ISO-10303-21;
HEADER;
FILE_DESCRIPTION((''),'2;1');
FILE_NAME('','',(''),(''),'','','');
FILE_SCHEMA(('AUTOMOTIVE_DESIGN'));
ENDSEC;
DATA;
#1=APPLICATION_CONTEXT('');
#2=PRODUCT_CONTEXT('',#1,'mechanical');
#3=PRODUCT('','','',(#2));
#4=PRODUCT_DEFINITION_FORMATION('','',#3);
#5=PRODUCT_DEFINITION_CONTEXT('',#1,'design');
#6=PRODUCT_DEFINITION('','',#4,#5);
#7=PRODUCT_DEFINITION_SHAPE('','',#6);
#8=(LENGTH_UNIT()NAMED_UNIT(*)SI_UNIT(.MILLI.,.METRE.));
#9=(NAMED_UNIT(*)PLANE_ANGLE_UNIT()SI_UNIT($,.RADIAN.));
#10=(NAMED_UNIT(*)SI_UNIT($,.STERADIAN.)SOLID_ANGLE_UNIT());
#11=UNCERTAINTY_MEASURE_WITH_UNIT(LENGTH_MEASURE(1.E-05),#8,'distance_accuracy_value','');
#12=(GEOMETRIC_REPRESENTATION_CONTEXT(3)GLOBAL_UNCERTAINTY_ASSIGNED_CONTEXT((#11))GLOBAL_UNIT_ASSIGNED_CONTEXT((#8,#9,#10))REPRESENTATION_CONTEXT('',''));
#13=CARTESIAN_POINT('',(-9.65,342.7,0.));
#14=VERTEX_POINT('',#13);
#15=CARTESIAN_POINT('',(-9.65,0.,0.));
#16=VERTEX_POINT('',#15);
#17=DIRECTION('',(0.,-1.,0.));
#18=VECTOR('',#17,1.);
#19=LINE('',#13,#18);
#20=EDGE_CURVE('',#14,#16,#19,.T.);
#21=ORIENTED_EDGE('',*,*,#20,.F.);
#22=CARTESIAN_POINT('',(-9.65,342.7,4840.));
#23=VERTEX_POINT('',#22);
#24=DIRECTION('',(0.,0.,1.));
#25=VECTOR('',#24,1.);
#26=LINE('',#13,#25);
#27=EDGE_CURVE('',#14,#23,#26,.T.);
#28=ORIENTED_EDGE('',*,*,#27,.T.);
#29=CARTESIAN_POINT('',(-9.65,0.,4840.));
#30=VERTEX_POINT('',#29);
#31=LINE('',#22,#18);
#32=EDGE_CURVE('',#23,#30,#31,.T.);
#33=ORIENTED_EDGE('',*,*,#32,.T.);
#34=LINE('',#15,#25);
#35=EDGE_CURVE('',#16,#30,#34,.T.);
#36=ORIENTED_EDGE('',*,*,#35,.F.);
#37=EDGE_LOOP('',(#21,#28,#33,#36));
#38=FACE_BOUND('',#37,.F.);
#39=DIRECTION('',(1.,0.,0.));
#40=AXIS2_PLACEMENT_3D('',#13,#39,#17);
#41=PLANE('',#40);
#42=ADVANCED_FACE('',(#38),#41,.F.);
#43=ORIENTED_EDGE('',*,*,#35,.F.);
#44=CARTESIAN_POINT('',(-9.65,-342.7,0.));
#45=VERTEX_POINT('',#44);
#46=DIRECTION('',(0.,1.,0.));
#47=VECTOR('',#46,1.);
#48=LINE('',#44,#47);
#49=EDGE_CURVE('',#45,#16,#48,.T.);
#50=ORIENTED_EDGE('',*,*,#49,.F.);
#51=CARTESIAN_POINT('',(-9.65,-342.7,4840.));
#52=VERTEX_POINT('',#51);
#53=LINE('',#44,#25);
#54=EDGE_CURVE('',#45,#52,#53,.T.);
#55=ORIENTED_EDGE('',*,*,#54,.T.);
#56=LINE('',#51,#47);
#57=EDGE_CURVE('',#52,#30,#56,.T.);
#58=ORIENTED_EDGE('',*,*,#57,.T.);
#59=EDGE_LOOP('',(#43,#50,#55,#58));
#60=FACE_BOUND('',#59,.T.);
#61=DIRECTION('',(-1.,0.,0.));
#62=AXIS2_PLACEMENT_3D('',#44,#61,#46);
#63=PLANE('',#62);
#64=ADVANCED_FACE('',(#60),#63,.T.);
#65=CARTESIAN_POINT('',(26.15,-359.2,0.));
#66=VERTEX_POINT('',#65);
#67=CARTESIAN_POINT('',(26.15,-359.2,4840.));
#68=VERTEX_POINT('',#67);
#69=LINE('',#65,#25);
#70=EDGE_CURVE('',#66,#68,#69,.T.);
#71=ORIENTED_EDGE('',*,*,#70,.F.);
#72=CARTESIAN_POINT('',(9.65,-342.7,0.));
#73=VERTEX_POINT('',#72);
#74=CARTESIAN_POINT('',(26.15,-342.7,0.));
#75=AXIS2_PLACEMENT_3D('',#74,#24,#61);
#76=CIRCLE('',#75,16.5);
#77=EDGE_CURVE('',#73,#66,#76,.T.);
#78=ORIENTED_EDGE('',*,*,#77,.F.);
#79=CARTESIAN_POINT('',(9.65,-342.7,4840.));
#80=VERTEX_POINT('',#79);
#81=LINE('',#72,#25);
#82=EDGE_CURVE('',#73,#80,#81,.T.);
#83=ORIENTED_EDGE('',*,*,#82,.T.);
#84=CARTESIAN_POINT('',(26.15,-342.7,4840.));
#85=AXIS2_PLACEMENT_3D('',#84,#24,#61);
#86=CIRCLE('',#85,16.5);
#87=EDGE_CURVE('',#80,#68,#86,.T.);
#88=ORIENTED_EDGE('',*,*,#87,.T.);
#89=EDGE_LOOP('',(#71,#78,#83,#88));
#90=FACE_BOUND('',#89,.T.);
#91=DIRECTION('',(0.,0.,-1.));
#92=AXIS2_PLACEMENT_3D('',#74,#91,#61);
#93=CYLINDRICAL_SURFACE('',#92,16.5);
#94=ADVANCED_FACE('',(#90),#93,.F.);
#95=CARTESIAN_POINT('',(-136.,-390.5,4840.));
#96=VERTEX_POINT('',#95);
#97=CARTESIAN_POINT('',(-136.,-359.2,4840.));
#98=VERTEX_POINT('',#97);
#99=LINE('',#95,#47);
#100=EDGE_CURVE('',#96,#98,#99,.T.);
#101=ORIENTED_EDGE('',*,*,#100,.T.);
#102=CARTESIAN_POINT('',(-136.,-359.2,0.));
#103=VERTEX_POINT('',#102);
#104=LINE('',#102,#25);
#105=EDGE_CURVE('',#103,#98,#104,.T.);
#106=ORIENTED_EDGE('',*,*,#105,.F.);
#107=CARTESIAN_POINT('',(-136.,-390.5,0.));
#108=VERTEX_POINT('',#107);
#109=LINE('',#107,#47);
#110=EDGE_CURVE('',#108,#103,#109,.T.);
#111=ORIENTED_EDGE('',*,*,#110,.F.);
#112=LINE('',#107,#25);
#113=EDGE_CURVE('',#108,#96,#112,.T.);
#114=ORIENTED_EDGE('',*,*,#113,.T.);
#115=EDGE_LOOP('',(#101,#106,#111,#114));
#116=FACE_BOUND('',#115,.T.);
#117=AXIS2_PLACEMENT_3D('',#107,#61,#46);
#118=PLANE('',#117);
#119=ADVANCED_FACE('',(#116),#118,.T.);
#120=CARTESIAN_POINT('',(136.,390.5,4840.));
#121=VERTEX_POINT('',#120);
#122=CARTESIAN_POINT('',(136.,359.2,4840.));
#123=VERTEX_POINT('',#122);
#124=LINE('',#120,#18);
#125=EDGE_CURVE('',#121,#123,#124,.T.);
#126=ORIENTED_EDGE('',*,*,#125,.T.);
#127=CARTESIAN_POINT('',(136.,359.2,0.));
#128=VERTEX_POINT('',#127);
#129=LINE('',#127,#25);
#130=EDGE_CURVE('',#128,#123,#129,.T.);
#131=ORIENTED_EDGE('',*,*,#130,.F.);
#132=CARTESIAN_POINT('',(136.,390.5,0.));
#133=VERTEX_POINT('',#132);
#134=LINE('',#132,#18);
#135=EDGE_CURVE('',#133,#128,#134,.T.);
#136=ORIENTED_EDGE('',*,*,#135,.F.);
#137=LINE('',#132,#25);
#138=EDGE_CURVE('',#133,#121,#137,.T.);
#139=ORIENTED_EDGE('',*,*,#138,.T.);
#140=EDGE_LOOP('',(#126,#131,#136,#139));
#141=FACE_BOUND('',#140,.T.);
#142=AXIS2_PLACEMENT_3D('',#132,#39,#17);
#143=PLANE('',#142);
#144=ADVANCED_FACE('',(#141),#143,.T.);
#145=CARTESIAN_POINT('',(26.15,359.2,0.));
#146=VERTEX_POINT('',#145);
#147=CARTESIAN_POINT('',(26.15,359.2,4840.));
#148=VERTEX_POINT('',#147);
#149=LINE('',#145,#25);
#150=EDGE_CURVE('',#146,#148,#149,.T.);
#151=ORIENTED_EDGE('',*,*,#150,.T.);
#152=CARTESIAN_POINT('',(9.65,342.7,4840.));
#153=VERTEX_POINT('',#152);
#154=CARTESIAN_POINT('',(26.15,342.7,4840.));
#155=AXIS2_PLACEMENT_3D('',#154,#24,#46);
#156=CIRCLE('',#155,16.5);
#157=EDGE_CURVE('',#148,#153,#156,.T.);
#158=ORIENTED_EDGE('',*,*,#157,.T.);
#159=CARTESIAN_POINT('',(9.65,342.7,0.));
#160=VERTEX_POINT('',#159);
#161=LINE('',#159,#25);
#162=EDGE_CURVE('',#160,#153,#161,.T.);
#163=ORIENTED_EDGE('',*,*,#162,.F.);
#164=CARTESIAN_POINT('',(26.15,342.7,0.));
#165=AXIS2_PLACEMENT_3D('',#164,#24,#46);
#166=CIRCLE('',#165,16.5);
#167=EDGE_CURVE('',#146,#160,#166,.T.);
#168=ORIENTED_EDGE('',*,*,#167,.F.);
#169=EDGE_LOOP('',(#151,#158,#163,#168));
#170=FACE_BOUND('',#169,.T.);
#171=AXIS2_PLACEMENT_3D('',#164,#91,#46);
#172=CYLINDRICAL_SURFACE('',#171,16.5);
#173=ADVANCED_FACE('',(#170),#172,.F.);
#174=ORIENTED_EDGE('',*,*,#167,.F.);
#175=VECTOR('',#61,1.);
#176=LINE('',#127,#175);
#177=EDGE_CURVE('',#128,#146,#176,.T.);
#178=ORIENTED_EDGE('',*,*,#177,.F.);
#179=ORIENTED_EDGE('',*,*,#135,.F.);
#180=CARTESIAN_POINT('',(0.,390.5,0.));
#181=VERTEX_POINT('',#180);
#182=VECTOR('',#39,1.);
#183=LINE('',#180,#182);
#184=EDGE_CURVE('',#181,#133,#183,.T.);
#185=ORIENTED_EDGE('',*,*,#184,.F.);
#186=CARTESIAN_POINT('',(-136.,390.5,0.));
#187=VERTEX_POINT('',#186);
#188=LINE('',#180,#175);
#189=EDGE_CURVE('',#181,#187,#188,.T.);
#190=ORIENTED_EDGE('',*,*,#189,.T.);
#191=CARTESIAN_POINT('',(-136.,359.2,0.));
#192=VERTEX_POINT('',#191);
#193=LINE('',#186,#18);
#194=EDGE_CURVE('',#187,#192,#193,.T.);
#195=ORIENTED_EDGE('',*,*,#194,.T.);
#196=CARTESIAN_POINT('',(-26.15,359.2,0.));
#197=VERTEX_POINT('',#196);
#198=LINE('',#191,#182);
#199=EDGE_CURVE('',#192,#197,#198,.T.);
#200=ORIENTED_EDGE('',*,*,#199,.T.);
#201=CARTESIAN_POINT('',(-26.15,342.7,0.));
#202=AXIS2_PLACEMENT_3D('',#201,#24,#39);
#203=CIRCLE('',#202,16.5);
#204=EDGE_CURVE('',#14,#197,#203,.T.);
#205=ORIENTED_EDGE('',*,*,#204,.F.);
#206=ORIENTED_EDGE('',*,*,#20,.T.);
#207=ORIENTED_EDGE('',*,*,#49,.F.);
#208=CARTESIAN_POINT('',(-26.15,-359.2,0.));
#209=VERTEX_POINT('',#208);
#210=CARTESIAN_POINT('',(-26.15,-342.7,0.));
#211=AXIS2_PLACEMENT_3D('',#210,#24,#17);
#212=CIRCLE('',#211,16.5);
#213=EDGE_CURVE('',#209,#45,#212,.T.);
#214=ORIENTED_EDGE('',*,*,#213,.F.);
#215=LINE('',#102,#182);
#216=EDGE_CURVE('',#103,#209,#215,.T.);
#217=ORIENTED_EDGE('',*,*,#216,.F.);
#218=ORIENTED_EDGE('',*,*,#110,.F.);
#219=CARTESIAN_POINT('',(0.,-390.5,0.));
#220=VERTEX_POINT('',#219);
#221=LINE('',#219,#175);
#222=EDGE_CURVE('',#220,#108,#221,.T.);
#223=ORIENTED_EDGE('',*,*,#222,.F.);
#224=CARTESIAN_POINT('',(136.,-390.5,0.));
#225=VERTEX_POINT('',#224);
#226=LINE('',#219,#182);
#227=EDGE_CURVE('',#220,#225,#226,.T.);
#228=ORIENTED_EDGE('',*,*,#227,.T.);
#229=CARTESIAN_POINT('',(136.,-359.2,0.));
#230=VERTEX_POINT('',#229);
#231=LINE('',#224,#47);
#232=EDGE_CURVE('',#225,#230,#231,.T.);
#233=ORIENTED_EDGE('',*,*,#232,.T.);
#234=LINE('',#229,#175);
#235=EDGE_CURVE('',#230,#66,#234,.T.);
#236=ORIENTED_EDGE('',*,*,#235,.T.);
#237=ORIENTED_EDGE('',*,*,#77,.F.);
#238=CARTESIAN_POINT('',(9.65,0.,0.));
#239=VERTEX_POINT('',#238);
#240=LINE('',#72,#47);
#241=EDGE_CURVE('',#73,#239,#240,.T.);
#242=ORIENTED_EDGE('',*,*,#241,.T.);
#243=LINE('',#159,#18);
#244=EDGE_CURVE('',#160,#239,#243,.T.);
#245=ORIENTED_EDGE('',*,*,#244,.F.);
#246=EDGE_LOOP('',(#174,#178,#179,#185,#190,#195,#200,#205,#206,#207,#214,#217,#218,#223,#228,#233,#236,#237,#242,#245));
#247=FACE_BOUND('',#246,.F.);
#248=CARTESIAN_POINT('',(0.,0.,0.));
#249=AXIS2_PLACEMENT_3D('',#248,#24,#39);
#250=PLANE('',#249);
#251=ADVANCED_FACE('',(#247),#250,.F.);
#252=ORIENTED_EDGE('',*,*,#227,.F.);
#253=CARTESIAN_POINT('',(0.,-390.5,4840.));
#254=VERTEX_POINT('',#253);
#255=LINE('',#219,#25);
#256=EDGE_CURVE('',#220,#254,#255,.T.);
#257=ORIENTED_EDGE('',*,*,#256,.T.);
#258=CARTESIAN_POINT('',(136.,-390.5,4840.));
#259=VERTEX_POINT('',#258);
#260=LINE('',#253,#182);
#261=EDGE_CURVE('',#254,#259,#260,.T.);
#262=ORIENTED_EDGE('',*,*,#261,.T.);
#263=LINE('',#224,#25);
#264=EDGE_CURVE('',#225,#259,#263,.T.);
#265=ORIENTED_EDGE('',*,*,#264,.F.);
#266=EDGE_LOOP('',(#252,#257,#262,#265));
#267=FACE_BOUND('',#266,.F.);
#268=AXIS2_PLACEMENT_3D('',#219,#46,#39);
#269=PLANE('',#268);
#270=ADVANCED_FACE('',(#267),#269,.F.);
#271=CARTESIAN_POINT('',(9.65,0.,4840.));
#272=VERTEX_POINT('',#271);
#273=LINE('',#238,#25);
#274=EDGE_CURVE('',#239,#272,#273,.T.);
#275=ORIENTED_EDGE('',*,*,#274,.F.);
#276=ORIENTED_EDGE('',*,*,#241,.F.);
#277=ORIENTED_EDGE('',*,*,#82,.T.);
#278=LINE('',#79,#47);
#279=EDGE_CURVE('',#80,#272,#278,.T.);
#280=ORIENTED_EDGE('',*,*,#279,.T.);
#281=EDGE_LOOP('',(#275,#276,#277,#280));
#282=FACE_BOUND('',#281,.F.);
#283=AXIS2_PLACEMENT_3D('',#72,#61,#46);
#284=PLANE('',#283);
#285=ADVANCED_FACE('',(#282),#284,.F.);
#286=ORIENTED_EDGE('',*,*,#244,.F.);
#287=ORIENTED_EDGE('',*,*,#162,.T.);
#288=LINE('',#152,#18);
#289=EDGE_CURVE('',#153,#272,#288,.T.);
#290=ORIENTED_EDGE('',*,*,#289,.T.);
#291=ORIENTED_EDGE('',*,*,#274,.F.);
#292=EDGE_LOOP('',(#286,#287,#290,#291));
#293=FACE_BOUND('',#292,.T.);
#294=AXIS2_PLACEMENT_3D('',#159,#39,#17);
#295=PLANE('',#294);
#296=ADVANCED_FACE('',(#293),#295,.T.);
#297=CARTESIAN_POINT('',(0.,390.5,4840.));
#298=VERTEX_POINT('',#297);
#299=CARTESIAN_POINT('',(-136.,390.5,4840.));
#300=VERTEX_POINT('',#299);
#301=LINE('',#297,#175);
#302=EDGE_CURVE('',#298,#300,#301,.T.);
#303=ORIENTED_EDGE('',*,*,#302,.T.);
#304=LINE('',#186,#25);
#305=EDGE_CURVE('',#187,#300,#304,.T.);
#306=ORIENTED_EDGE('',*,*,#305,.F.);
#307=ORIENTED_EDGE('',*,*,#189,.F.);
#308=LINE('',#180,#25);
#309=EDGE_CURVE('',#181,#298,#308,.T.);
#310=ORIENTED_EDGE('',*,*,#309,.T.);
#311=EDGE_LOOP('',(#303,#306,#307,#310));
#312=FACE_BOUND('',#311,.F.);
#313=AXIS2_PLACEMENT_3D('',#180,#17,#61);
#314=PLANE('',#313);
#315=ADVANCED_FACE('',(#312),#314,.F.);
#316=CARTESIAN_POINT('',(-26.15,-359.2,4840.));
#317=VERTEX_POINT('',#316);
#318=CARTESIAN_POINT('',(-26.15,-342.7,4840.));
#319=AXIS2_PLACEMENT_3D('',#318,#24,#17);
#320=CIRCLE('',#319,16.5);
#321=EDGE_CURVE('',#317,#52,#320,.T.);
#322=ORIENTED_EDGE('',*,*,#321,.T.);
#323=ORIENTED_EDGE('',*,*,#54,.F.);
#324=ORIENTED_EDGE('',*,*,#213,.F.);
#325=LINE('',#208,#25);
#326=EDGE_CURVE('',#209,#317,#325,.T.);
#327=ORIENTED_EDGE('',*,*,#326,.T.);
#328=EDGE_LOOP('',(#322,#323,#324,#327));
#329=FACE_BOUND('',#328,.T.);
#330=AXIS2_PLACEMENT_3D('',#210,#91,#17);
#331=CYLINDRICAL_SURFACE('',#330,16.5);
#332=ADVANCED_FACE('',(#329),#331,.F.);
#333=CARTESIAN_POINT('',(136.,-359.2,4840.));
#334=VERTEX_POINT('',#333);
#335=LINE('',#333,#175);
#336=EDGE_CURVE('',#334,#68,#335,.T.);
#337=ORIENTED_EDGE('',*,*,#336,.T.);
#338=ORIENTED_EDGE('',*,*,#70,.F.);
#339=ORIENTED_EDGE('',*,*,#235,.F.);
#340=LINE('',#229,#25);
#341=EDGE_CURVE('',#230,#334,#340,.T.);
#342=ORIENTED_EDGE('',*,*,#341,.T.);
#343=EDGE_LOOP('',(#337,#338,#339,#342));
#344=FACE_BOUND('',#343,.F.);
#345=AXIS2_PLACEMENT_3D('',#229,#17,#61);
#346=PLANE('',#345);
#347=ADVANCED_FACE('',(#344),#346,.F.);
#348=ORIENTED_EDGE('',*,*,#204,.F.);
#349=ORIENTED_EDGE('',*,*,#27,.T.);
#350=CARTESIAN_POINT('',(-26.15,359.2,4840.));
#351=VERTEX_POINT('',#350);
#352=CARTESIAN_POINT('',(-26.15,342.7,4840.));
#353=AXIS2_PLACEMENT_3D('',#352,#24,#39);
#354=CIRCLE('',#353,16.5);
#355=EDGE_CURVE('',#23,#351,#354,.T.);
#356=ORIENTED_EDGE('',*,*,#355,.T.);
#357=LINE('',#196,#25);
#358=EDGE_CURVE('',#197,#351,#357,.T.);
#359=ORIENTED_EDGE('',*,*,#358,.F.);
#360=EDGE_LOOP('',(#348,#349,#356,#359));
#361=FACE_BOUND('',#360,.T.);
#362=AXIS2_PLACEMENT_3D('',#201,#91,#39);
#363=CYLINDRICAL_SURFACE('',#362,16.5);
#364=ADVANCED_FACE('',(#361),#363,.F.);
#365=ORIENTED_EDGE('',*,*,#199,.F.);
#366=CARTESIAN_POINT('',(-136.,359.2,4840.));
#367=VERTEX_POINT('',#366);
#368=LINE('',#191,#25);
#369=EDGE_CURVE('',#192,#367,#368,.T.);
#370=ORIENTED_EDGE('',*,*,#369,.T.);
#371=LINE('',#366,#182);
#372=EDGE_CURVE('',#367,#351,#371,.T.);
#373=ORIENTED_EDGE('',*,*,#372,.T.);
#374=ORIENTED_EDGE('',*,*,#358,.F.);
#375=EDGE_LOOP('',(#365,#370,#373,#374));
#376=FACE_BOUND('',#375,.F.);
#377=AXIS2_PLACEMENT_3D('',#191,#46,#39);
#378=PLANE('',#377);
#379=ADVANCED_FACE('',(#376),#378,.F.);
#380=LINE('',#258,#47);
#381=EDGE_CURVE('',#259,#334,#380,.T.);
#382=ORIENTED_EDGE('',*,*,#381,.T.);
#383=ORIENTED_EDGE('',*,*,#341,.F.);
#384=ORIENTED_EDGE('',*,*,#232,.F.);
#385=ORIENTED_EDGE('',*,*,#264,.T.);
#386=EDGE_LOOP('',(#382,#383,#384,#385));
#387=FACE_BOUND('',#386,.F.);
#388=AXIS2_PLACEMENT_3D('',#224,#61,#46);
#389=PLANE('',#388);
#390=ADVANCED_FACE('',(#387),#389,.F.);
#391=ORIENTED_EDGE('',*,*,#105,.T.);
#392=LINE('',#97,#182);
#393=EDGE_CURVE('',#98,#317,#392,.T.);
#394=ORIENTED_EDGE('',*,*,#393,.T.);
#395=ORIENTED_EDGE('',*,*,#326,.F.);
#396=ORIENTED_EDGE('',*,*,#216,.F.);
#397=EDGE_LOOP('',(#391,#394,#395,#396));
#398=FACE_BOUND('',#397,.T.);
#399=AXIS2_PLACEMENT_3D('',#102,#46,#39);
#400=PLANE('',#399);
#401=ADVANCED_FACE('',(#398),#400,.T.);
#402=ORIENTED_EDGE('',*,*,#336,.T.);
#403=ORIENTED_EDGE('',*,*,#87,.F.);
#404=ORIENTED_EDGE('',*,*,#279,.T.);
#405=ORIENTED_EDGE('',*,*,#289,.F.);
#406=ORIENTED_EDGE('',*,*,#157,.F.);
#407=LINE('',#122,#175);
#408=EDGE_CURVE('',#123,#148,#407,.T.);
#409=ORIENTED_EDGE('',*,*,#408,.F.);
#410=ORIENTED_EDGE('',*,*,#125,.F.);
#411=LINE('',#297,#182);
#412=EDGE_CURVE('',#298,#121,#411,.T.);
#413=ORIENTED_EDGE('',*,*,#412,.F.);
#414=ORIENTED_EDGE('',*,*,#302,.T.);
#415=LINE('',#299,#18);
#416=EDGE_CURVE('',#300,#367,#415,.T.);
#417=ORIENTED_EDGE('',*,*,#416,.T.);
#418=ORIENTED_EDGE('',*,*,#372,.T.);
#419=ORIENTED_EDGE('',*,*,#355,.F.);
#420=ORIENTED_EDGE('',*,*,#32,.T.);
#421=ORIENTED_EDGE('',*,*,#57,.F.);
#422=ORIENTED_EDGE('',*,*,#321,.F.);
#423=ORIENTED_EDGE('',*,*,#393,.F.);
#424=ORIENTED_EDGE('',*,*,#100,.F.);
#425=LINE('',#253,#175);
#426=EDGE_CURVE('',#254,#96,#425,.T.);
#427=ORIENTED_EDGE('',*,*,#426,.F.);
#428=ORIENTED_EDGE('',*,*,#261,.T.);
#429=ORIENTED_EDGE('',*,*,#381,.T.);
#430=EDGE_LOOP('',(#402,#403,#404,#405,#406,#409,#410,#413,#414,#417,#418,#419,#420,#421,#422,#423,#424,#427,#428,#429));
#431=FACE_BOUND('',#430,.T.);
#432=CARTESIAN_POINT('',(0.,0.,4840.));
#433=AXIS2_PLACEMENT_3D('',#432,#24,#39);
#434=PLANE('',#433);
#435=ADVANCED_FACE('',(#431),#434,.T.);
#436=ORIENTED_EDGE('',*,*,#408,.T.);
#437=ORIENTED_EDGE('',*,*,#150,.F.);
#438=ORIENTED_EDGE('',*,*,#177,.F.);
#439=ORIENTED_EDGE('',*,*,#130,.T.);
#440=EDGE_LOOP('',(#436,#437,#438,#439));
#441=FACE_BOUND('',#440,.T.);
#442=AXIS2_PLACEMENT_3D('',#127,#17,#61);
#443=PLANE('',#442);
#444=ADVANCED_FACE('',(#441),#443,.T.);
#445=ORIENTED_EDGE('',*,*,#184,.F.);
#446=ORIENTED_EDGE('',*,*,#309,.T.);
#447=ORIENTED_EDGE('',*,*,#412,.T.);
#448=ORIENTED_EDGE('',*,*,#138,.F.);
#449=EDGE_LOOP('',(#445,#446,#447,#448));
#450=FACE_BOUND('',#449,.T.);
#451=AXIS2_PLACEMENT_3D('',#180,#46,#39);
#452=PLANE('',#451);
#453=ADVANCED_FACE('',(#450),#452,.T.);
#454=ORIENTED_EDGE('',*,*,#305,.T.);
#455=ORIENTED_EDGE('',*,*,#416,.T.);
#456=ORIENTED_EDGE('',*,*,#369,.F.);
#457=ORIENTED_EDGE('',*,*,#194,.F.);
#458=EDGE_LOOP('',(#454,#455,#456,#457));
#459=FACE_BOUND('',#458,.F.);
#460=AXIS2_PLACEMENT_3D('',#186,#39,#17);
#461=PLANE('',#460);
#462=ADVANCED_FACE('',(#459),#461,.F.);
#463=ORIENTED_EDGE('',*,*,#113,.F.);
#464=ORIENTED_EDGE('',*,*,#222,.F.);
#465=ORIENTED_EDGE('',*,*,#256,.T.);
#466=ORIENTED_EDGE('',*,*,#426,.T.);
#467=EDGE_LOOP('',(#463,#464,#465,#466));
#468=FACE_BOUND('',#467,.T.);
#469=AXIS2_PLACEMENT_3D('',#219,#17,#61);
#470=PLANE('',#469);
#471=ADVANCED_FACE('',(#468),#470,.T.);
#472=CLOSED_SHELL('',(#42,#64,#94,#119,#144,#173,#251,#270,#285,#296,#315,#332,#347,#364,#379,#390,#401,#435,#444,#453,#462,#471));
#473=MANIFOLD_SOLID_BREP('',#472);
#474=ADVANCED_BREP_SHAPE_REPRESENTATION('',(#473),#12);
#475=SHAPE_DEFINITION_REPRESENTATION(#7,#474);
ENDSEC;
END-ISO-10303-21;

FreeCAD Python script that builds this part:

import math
import FreeCAD as App
import Part
import Sketcher
from FreeCAD import Vector
Q = App.Units.Quantity

doc = App.newDocument("Part")
body = doc.addObject("PartDesign::Body", "Body")

# Sketch on XY plane
sketch1 = doc.addObject("Sketcher::SketchObject", "Sketch")
body.addObject(sketch1)
sketch1.AttachmentSupport = (doc.XY_Plane, [""])
sketch1.MapMode = "FlatFace"
sketch1.addGeometry(Part.LineSegment(Vector(-136, -359.2, 0), Vector(-136, -390.5, 0)), False)
sketch1.addGeometry(Part.LineSegment(Vector(-136, -390.5, 0), Vector(136, -390.5, 0)), False)
sketch1.addGeometry(Part.LineSegment(Vector(136, -390.5, 0), Vector(136, -359.2, 0)), False)
sketch1.addGeometry(Part.LineSegment(Vector(136, -359.2, 0), Vector(26.15, -359.2, 0)), False)
sketch1.addGeometry(Part.ArcOfCircle(Part.Circle(Vector(26.15, -342.7, 0), Vector(0, 0, 1), 16.5), math.radians(180), math.radians(270)), False)
sketch1.addGeometry(Part.LineSegment(Vector(9.65, -342.7, 0), Vector(9.65, 342.7, 0)), False)
sketch1.addGeometry(Part.ArcOfCircle(Part.Circle(Vector(26.15, 342.7, 0), Vector(0, 0, 1), 16.5), math.radians(90), math.radians(180)), False)
sketch1.addGeometry(Part.LineSegment(Vector(26.15, 359.2, 0), Vector(136, 359.2, 0)), False)
sketch1.addGeometry(Part.LineSegment(Vector(136, 359.2, 0), Vector(136, 390.5, 0)), False)
sketch1.addGeometry(Part.LineSegment(Vector(136, 390.5, 0), Vector(-136, 390.5, 0)), False)
sketch1.addGeometry(Part.LineSegment(Vector(-136, 390.5, 0), Vector(-136, 359.2, 0)), False)
sketch1.addGeometry(Part.LineSegment(Vector(-136, 359.2, 0), Vector(-26.15, 359.2, 0)), False)
sketch1.addGeometry(Part.ArcOfCircle(Part.Circle(Vector(-26.15, 342.7, 0), Vector(0, 0, 1), 16.5), math.radians(0), math.radians(90)), False)
sketch1.addGeometry(Part.LineSegment(Vector(-9.65, 342.7, 0), Vector(-9.65, -342.7, 0)), False)
sketch1.addGeometry(Part.ArcOfCircle(Part.Circle(Vector(-26.15, -342.7, 0), Vector(0, 0, 1), 16.5), math.radians(-90), math.radians(0)), False)
sketch1.addGeometry(Part.LineSegment(Vector(-26.15, -359.2, 0), Vector(-136, -359.2, 0)), False)
sketch1.addConstraint(Sketcher.Constraint("Coincident", 0, 2, 1, 1))
sketch1.addConstraint(Sketcher.Constraint("Coincident", 1, 2, 2, 1))
sketch1.addConstraint(Sketcher.Constraint("Coincident", 2, 2, 3, 1))
sketch1.addConstraint(Sketcher.Constraint("Tangent", 3, 2, 4, 2))
sketch1.addConstraint(Sketcher.Constraint("Tangent", 4, 1, 5, 1))
sketch1.addConstraint(Sketcher.Constraint("Tangent", 5, 2, 6, 2))
sketch1.addConstraint(Sketcher.Constraint("Tangent", 6, 1, 7, 1))
sketch1.addConstraint(Sketcher.Constraint("Coincident", 7, 2, 8, 1))
sketch1.addConstraint(Sketcher.Constraint("Coincident", 8, 2, 9, 1))
sketch1.addConstraint(Sketcher.Constraint("Coincident", 9, 2, 10, 1))
sketch1.addConstraint(Sketcher.Constraint("Coincident", 10, 2, 11, 1))
sketch1.addConstraint(Sketcher.Constraint("Tangent", 11, 2, 12, 2))
sketch1.addConstraint(Sketcher.Constraint("Tangent", 12, 1, 13, 1))
sketch1.addConstraint(Sketcher.Constraint("Tangent", 13, 2, 14, 2))
sketch1.addConstraint(Sketcher.Constraint("Tangent", 14, 1, 15, 1))
sketch1.addConstraint(Sketcher.Constraint("Coincident", 15, 2, 0, 1))
sketch1.addConstraint(Sketcher.Constraint("Vertical", 0))
sketch1.addConstraint(Sketcher.Constraint("Horizontal", 1))
sketch1.addConstraint(Sketcher.Constraint("Vertical", 2))
sketch1.addConstraint(Sketcher.Constraint("Horizontal", 3))
sketch1.addConstraint(Sketcher.Constraint("Vertical", 5))
sketch1.addConstraint(Sketcher.Constraint("Horizontal", 7))
sketch1.addConstraint(Sketcher.Constraint("Vertical", 8))
sketch1.addConstraint(Sketcher.Constraint("Horizontal", 9))
sketch1.addConstraint(Sketcher.Constraint("Vertical", 10))
sketch1.addConstraint(Sketcher.Constraint("Horizontal", 11))
sketch1.addConstraint(Sketcher.Constraint("Vertical", 13))
sketch1.addConstraint(Sketcher.Constraint("Horizontal", 15))
sketch1.addConstraint(Sketcher.Constraint("Equal", 4, 6))
sketch1.addConstraint(Sketcher.Constraint("Equal", 6, 12))
sketch1.addConstraint(Sketcher.Constraint("Equal", 12, 14))
sketch1.addConstraint(Sketcher.Constraint("Symmetric", 4, 3, 12, 3, -1, 1))
sketch1.addConstraint(Sketcher.Constraint("Symmetric", 0, 2, 8, 2, -1, 1))
sketch1.addConstraint(Sketcher.Constraint("Symmetric", 7, 2, 10, 2, -2))
sketch1.addConstraint(Sketcher.Constraint("Symmetric", 2, 2, 15, 2, -2))
sketch1.addConstraint(Sketcher.Constraint("Radius", 4, Q("16.5 mm")))
sketch1.addConstraint(Sketcher.Constraint("DistanceY", 0, 2, 0, 1, Q("31.3 mm")))
sketch1.addConstraint(Sketcher.Constraint("DistanceX", 0, 2, -1, 1, Q("136 mm")))
sketch1.addConstraint(Sketcher.Constraint("DistanceY", 0, 2, -1, 1, Q("390.5 mm")))
sketch1.addConstraint(Sketcher.Constraint("DistanceX", -1, 1, 4, 1, Q("9.65 mm")))
pad1 = doc.addObject("PartDesign::Pad", "Pad")
body.addObject(pad1)
pad1.Profile = sketch1
pad1.Length = 4840

doc.recompute()
